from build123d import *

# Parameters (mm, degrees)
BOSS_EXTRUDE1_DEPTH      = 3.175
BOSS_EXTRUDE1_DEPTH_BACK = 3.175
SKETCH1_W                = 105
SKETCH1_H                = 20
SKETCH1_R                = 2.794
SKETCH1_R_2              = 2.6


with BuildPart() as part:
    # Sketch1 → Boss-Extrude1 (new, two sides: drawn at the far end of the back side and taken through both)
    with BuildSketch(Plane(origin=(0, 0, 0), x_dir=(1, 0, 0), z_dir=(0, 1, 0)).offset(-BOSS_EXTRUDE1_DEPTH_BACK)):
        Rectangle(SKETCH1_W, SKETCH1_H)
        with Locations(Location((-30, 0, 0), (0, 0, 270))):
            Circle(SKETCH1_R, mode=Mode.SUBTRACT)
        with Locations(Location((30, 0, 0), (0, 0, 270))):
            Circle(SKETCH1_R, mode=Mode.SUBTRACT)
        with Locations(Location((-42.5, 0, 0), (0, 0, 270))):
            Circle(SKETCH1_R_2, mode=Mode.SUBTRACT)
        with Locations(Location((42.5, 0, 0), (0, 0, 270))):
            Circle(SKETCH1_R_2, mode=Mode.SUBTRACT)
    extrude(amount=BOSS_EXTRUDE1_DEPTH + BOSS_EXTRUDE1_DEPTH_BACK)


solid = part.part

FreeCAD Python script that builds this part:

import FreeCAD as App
import Part
import Sketcher
Q = App.Units.Quantity

doc = App.newDocument("Part")
body = doc.addObject("PartDesign::Body", "Body")

sketch1 = doc.addObject("Sketcher::SketchObject", "Sketch")
body.addObject(sketch1)
sketch1.AttachmentSupport = (doc.XZ_Plane, [""])
sketch1.MapMode = "FlatFace"
sketch1.addGeometry([
    Part.LineSegment(App.Vector(-52.5, -10, 0), App.Vector(-52.5, 10, 0)),
    Part.LineSegment(App.Vector(-52.5, 10, 0), App.Vector(52.5, 10, 0)),
    Part.LineSegment(App.Vector(52.5, 10, 0), App.Vector(52.5, -10, 0)),
    Part.LineSegment(App.Vector(52.5, -10, 0), App.Vector(-52.5, -10, 0)),
    Part.Circle(App.Vector(-42.5, 0, 0), App.Vector(0, 0, 1), 2.6),
    Part.Circle(App.Vector(-30, 0, 0), App.Vector(0, 0, 1), 2.8),
    Part.Circle(App.Vector(30, 0, 0), App.Vector(0, 0, 1), 2.8),
    Part.Circle(App.Vector(42.5, 0, 0), App.Vector(0, 0, 1), 2.6),
], False)
sketch1.addConstraint([
    Sketcher.Constraint("Coincident", 0, 2, 1, 1),
    Sketcher.Constraint("Coincident", 1, 2, 2, 1),
    Sketcher.Constraint("Coincident", 2, 2, 3, 1),
    Sketcher.Constraint("Coincident", 3, 2, 0, 1),
    Sketcher.Constraint("Vertical", 0),
    Sketcher.Constraint("Horizontal", 1),
    Sketcher.Constraint("Vertical", 2),
    Sketcher.Constraint("Horizontal", 3),
    Sketcher.Constraint("Equal", 5, 6),
    Sketcher.Constraint("Equal", 4, 7),
    Sketcher.Constraint("Symmetric", 5, 3, 6, 3, -1, 1),
    Sketcher.Constraint("Symmetric", 4, 3, 7, 3, -1, 1),
    Sketcher.Constraint("Symmetric", 0, 2, 2, 2, -1, 1),
    Sketcher.Constraint("PointOnObject", 4, 3, -1),
    Sketcher.Constraint("PointOnObject", 5, 3, -1),
    Sketcher.Constraint("Diameter", 4, Q("5.2 mm")),
    Sketcher.Constraint("DistanceX", 1, 1, 1, 2, Q("105 mm")),
    Sketcher.Constraint("DistanceY", 0, 1, 0, 2, Q("20 mm")),
    Sketcher.Constraint("Diameter", 5, Q("5.588 mm")),
    Sketcher.Constraint("DistanceX", 5, 3, -1, 1, Q("30 mm")),
    Sketcher.Constraint("DistanceX", 4, 3, 7, 3, Q("85 mm")),
])
pad1 = doc.addObject("PartDesign::Pad", "Pad")
body.addObject(pad1)
pad1.Profile = sketch1
pad1.Type = "TwoLengths"
pad1.Length = 3.175
pad1.Length2 = 3.175
pad1.Reversed = True

doc.recompute()
